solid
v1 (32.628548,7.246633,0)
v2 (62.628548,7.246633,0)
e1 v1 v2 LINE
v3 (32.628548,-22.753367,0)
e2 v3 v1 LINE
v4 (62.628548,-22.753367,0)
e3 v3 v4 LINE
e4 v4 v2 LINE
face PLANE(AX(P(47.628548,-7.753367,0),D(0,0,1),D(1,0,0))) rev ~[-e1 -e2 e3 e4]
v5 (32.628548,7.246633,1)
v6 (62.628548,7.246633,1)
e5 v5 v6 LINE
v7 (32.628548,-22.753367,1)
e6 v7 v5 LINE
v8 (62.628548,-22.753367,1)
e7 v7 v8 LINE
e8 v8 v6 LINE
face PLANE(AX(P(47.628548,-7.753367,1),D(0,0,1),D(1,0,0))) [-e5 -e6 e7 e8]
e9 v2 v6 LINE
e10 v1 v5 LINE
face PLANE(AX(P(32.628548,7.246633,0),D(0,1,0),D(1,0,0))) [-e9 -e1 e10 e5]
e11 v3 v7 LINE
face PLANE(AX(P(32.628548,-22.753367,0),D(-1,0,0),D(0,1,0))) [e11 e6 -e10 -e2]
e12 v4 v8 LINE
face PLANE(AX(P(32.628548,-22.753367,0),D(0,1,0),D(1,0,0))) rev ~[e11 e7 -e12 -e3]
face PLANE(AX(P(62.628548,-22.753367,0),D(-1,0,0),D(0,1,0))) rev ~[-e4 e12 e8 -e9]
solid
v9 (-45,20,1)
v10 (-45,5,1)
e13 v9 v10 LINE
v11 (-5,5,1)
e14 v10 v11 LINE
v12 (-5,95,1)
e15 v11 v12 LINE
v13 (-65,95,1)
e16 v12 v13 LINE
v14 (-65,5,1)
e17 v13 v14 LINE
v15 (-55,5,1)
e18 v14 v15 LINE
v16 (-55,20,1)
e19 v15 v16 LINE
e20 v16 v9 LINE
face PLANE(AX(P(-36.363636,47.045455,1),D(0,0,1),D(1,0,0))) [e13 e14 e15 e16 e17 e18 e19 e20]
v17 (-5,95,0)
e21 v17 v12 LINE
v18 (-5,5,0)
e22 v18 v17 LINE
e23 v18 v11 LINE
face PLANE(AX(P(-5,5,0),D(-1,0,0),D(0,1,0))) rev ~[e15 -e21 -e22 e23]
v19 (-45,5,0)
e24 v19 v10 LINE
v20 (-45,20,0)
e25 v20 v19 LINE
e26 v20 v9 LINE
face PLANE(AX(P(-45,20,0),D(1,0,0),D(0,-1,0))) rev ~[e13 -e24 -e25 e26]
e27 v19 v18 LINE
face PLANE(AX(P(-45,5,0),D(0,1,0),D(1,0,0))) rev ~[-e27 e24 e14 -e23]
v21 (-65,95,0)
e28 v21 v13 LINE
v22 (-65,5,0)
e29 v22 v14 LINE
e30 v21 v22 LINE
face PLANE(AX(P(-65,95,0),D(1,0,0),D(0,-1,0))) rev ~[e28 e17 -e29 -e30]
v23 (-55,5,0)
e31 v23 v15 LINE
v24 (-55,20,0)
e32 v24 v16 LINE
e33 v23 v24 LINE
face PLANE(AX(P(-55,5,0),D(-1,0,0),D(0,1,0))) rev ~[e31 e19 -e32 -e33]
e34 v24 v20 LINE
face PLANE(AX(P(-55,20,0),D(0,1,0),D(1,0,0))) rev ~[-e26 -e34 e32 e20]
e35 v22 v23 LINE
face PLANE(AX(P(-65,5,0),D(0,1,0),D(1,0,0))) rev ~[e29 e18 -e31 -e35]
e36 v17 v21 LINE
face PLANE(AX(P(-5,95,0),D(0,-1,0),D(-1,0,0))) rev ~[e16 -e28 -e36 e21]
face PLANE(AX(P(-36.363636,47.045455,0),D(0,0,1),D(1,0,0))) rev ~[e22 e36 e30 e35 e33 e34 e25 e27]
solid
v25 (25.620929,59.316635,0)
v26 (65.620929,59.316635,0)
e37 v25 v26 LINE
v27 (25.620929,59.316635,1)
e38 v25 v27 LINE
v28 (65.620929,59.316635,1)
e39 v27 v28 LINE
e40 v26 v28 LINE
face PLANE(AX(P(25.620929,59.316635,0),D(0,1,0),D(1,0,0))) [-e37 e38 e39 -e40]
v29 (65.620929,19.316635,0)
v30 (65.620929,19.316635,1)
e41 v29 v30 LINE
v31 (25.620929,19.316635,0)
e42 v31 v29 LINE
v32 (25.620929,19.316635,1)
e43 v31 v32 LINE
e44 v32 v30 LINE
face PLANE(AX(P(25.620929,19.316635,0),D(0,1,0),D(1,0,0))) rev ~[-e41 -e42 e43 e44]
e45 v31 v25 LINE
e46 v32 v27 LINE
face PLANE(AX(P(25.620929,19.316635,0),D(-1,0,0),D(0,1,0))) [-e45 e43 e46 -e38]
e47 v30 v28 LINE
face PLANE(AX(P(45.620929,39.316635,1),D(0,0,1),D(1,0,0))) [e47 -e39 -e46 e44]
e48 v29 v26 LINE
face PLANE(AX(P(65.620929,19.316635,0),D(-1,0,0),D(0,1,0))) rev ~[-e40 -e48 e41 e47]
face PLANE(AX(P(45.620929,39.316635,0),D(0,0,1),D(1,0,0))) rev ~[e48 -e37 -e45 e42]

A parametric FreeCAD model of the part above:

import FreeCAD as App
import Part
import Sketcher

V = App.Vector


def add_polygon(sketch, points):
    """Adds a closed chain of lines whose ends are joined by coincident constraints."""
    first, n = sketch.GeometryCount, len(points)
    for a, b in zip(points, points[1:] + points[:1]):
        sketch.addGeometry(Part.LineSegment(App.Vector(*a, 0), App.Vector(*b, 0)), False)
    for i in range(n):
        sketch.addConstraint(Sketcher.Constraint("Coincident", first + i, 2, first + (i + 1) % n, 1))

doc = App.newDocument("Part")
body = doc.addObject("PartDesign::Body", "Body")

# Sketch on XY plane
sketch1 = doc.addObject("Sketcher::SketchObject", "Sketch")
body.addObject(sketch1)
sketch1.AttachmentSupport = (doc.XY_Plane, [""])
sketch1.MapMode = "FlatFace"
add_polygon(sketch1, [(-5, 95), (-65, 95), (-65, 5), (-55, 5), (-55, 20), (-45, 20), (-45, 5), (-5, 5)])  # lines 0-7
sketch1.addConstraint([
    Sketcher.Constraint("Horizontal", 0),
    Sketcher.Constraint("Vertical", 1),
    Sketcher.Constraint("Horizontal", 2),
    Sketcher.Constraint("Vertical", 3),
    Sketcher.Constraint("Horizontal", 4),
    Sketcher.Constraint("Vertical", 5),
    Sketcher.Constraint("Horizontal", 6),
    Sketcher.Constraint("Vertical", 7),
    Sketcher.Constraint("Horizontal", 2, 2, 5, 2),
    Sketcher.Constraint("Equal", 2, 4),
    Sketcher.Constraint("DistanceX", 0, 2, 0, 1, 60.0),
    Sketcher.Constraint("DistanceX", 2, 1, 2, 2, 10.0),
    Sketcher.Constraint("DistanceY", 1, 2, 1, 1, 90.0),
    Sketcher.Constraint("DistanceY", 3, 1, 3, 2, 15.0),
    Sketcher.Constraint("DistanceX", 0, 2, -1, 1, 65.0),
    Sketcher.Constraint("DistanceY", -1, 1, 0, 2, 95.0),
])
pad1 = doc.addObject("PartDesign::Pad", "Pad")
body.addObject(pad1)
pad1.Profile = sketch1
pad1.Length = 1
body2 = doc.addObject("PartDesign::Body", "Body001")
body2.AllowCompound = True

# Sketch on XY plane
sketch2 = doc.addObject("Sketcher::SketchObject", "Sketch001")
body2.addObject(sketch2)
sketch2.AttachmentSupport = (doc.getObject("XY_Plane001"), [""])
sketch2.MapMode = "FlatFace"
add_polygon(sketch2, [(26, 59), (26, 19), (66, 19), (66, 59)])  # lines 0-3
add_polygon(sketch2, [(33, 7), (33, -23), (63, -23), (63, 7)])  # lines 4-7
sketch2.addConstraint([
    Sketcher.Constraint("Vertical", 0),
    Sketcher.Constraint("Horizontal", 1),
    Sketcher.Constraint("Vertical", 2),
    Sketcher.Constraint("Horizontal", 3),
    Sketcher.Constraint("Vertical", 4),
    Sketcher.Constraint("Horizontal", 5),
    Sketcher.Constraint("Vertical", 6),
    Sketcher.Constraint("Horizontal", 7),
    Sketcher.Constraint("Equal", 3, 0),
    Sketcher.Constraint("Equal", 7, 4),
    Sketcher.Constraint("DistanceX", 1, 1, 1, 2, 40.0),
    Sketcher.Constraint("DistanceX", 5, 1, 5, 2, 30.0),
    Sketcher.Constraint("DistanceY", 6, 2, 2, 2, 52.070002),
    Sketcher.Constraint("DistanceX", -1, 1, 0, 2, 25.620929),
    Sketcher.Constraint("DistanceX", -1, 1, 4, 2, 32.628548),
    Sketcher.Constraint("DistanceY", -1, 1, 0, 2, 19.316635),
])
pad2 = doc.addObject("PartDesign::Pad", "Pad001")
body2.addObject(pad2)
pad2.Profile = sketch2
pad2.Length = 1

doc.recompute()
